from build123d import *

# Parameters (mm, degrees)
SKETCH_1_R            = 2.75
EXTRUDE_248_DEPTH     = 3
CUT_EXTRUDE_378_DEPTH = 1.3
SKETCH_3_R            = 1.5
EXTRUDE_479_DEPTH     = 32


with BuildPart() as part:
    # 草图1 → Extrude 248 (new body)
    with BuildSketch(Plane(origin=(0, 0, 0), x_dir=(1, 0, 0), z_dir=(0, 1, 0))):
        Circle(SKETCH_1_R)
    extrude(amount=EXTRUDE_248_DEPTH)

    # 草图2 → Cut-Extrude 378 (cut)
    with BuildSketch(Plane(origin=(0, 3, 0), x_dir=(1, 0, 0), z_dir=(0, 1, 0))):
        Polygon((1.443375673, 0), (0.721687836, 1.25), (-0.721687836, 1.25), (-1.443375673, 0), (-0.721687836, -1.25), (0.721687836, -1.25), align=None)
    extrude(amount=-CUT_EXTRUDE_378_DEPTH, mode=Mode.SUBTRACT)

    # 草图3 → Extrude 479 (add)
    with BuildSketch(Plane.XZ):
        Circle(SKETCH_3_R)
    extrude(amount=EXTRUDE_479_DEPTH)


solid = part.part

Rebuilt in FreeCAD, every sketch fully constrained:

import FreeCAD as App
import Part
import Sketcher

V = App.Vector
Q = App.Units.Quantity


def add_polygon(sketch, points):
    """Adds a closed chain of lines whose ends are joined by coincident constraints."""
    first, n = sketch.GeometryCount, len(points)
    for a, b in zip(points, points[1:] + points[:1]):
        sketch.addGeometry(Part.LineSegment(App.Vector(*a, 0), App.Vector(*b, 0)), False)
    for i in range(n):
        sketch.addConstraint(Sketcher.Constraint("Coincident", first + i, 2, first + (i + 1) % n, 1))

doc = App.newDocument("Part")
body = doc.addObject("PartDesign::Body", "Body")

# Sketch on XZ plane
sketch1 = body.newObject("Sketcher::SketchObject", "Sketch")
sketch1.AttachmentSupport = (doc.getObject("XZ_Plane"), [""])
sketch1.MapMode = "FlatFace"
sketch1.addGeometry(Part.Circle(V(0, 0, 0), V(0, 0, 1), 2.8), False)
sketch1.addConstraint(Sketcher.Constraint("Coincident", 0, 3, -1, 1))
sketch1.addConstraint(Sketcher.Constraint("Diameter", 0, Q("5.5 mm")))
pad1 = body.newObject("PartDesign::Pad", "Pad")
pad1.Profile = sketch1
pad1.Length = 3
pad1.Reversed = True

# Sketch on XZ plane
sketch2 = body.newObject("Sketcher::SketchObject", "Sketch001")
sketch2.AttachmentSupport = (doc.getObject("XZ_Plane"), [""])
sketch2.MapMode = "FlatFace"
sketch2.AttachmentOffset = App.Placement(V(0, 0, -3), App.Rotation())
add_polygon(sketch2, [(1.4, 0), (0.7, -1.2), (-0.7, -1.2), (-1.4, 0), (-0.7, 1.2), (0.7, 1.2)])  # lines 0-5
sketch2.addConstraint(Sketcher.Constraint("Horizontal", 1))
sketch2.addConstraint(Sketcher.Constraint("Horizontal", 4))
sketch2.addConstraint(Sketcher.Constraint("Symmetric", 0, 2, 3, 2, -1, 1))
sketch2.addConstraint(Sketcher.Constraint("Symmetric", 2, 2, 5, 2, -1, 1))
sketch2.addConstraint(Sketcher.Constraint("PointOnObject", 2, 2, -1))
sketch2.addConstraint(Sketcher.Constraint("Parallel", 2, 5))
sketch2.addConstraint(Sketcher.Constraint("Vertical", 1, 2, 3, 2))
sketch2.addConstraint(Sketcher.Constraint("Angle", 0, Q("-120 deg")))
sketch2.addConstraint(Sketcher.Constraint("DistanceY", 1, 2, 3, 2, Q("2.5 mm")))
sketch2.addConstraint(Sketcher.Constraint("DistanceX", 1, 2, 1, 1, Q("1.443376 mm")))
pocket1 = body.newObject("PartDesign::Pocket", "Pocket")
pocket1.Profile = sketch2
pocket1.Length = 1.3
pocket1.Reversed = True

# Sketch on XZ plane
sketch3 = body.newObject("Sketcher::SketchObject", "Sketch002")
sketch3.AttachmentSupport = (doc.getObject("XZ_Plane"), [""])
sketch3.MapMode = "FlatFace"
sketch3.addGeometry(Part.Circle(V(0, 0, 0), V(0, 0, 1), 1.5), False)
sketch3.addConstraint(Sketcher.Constraint("Coincident", 0, 3, -1, 1))
sketch3.addConstraint(Sketcher.Constraint("Diameter", 0, Q("3 mm")))
pad2 = body.newObject("PartDesign::Pad", "Pad001")
pad2.Profile = sketch3
pad2.Length = 32

doc.recompute()
